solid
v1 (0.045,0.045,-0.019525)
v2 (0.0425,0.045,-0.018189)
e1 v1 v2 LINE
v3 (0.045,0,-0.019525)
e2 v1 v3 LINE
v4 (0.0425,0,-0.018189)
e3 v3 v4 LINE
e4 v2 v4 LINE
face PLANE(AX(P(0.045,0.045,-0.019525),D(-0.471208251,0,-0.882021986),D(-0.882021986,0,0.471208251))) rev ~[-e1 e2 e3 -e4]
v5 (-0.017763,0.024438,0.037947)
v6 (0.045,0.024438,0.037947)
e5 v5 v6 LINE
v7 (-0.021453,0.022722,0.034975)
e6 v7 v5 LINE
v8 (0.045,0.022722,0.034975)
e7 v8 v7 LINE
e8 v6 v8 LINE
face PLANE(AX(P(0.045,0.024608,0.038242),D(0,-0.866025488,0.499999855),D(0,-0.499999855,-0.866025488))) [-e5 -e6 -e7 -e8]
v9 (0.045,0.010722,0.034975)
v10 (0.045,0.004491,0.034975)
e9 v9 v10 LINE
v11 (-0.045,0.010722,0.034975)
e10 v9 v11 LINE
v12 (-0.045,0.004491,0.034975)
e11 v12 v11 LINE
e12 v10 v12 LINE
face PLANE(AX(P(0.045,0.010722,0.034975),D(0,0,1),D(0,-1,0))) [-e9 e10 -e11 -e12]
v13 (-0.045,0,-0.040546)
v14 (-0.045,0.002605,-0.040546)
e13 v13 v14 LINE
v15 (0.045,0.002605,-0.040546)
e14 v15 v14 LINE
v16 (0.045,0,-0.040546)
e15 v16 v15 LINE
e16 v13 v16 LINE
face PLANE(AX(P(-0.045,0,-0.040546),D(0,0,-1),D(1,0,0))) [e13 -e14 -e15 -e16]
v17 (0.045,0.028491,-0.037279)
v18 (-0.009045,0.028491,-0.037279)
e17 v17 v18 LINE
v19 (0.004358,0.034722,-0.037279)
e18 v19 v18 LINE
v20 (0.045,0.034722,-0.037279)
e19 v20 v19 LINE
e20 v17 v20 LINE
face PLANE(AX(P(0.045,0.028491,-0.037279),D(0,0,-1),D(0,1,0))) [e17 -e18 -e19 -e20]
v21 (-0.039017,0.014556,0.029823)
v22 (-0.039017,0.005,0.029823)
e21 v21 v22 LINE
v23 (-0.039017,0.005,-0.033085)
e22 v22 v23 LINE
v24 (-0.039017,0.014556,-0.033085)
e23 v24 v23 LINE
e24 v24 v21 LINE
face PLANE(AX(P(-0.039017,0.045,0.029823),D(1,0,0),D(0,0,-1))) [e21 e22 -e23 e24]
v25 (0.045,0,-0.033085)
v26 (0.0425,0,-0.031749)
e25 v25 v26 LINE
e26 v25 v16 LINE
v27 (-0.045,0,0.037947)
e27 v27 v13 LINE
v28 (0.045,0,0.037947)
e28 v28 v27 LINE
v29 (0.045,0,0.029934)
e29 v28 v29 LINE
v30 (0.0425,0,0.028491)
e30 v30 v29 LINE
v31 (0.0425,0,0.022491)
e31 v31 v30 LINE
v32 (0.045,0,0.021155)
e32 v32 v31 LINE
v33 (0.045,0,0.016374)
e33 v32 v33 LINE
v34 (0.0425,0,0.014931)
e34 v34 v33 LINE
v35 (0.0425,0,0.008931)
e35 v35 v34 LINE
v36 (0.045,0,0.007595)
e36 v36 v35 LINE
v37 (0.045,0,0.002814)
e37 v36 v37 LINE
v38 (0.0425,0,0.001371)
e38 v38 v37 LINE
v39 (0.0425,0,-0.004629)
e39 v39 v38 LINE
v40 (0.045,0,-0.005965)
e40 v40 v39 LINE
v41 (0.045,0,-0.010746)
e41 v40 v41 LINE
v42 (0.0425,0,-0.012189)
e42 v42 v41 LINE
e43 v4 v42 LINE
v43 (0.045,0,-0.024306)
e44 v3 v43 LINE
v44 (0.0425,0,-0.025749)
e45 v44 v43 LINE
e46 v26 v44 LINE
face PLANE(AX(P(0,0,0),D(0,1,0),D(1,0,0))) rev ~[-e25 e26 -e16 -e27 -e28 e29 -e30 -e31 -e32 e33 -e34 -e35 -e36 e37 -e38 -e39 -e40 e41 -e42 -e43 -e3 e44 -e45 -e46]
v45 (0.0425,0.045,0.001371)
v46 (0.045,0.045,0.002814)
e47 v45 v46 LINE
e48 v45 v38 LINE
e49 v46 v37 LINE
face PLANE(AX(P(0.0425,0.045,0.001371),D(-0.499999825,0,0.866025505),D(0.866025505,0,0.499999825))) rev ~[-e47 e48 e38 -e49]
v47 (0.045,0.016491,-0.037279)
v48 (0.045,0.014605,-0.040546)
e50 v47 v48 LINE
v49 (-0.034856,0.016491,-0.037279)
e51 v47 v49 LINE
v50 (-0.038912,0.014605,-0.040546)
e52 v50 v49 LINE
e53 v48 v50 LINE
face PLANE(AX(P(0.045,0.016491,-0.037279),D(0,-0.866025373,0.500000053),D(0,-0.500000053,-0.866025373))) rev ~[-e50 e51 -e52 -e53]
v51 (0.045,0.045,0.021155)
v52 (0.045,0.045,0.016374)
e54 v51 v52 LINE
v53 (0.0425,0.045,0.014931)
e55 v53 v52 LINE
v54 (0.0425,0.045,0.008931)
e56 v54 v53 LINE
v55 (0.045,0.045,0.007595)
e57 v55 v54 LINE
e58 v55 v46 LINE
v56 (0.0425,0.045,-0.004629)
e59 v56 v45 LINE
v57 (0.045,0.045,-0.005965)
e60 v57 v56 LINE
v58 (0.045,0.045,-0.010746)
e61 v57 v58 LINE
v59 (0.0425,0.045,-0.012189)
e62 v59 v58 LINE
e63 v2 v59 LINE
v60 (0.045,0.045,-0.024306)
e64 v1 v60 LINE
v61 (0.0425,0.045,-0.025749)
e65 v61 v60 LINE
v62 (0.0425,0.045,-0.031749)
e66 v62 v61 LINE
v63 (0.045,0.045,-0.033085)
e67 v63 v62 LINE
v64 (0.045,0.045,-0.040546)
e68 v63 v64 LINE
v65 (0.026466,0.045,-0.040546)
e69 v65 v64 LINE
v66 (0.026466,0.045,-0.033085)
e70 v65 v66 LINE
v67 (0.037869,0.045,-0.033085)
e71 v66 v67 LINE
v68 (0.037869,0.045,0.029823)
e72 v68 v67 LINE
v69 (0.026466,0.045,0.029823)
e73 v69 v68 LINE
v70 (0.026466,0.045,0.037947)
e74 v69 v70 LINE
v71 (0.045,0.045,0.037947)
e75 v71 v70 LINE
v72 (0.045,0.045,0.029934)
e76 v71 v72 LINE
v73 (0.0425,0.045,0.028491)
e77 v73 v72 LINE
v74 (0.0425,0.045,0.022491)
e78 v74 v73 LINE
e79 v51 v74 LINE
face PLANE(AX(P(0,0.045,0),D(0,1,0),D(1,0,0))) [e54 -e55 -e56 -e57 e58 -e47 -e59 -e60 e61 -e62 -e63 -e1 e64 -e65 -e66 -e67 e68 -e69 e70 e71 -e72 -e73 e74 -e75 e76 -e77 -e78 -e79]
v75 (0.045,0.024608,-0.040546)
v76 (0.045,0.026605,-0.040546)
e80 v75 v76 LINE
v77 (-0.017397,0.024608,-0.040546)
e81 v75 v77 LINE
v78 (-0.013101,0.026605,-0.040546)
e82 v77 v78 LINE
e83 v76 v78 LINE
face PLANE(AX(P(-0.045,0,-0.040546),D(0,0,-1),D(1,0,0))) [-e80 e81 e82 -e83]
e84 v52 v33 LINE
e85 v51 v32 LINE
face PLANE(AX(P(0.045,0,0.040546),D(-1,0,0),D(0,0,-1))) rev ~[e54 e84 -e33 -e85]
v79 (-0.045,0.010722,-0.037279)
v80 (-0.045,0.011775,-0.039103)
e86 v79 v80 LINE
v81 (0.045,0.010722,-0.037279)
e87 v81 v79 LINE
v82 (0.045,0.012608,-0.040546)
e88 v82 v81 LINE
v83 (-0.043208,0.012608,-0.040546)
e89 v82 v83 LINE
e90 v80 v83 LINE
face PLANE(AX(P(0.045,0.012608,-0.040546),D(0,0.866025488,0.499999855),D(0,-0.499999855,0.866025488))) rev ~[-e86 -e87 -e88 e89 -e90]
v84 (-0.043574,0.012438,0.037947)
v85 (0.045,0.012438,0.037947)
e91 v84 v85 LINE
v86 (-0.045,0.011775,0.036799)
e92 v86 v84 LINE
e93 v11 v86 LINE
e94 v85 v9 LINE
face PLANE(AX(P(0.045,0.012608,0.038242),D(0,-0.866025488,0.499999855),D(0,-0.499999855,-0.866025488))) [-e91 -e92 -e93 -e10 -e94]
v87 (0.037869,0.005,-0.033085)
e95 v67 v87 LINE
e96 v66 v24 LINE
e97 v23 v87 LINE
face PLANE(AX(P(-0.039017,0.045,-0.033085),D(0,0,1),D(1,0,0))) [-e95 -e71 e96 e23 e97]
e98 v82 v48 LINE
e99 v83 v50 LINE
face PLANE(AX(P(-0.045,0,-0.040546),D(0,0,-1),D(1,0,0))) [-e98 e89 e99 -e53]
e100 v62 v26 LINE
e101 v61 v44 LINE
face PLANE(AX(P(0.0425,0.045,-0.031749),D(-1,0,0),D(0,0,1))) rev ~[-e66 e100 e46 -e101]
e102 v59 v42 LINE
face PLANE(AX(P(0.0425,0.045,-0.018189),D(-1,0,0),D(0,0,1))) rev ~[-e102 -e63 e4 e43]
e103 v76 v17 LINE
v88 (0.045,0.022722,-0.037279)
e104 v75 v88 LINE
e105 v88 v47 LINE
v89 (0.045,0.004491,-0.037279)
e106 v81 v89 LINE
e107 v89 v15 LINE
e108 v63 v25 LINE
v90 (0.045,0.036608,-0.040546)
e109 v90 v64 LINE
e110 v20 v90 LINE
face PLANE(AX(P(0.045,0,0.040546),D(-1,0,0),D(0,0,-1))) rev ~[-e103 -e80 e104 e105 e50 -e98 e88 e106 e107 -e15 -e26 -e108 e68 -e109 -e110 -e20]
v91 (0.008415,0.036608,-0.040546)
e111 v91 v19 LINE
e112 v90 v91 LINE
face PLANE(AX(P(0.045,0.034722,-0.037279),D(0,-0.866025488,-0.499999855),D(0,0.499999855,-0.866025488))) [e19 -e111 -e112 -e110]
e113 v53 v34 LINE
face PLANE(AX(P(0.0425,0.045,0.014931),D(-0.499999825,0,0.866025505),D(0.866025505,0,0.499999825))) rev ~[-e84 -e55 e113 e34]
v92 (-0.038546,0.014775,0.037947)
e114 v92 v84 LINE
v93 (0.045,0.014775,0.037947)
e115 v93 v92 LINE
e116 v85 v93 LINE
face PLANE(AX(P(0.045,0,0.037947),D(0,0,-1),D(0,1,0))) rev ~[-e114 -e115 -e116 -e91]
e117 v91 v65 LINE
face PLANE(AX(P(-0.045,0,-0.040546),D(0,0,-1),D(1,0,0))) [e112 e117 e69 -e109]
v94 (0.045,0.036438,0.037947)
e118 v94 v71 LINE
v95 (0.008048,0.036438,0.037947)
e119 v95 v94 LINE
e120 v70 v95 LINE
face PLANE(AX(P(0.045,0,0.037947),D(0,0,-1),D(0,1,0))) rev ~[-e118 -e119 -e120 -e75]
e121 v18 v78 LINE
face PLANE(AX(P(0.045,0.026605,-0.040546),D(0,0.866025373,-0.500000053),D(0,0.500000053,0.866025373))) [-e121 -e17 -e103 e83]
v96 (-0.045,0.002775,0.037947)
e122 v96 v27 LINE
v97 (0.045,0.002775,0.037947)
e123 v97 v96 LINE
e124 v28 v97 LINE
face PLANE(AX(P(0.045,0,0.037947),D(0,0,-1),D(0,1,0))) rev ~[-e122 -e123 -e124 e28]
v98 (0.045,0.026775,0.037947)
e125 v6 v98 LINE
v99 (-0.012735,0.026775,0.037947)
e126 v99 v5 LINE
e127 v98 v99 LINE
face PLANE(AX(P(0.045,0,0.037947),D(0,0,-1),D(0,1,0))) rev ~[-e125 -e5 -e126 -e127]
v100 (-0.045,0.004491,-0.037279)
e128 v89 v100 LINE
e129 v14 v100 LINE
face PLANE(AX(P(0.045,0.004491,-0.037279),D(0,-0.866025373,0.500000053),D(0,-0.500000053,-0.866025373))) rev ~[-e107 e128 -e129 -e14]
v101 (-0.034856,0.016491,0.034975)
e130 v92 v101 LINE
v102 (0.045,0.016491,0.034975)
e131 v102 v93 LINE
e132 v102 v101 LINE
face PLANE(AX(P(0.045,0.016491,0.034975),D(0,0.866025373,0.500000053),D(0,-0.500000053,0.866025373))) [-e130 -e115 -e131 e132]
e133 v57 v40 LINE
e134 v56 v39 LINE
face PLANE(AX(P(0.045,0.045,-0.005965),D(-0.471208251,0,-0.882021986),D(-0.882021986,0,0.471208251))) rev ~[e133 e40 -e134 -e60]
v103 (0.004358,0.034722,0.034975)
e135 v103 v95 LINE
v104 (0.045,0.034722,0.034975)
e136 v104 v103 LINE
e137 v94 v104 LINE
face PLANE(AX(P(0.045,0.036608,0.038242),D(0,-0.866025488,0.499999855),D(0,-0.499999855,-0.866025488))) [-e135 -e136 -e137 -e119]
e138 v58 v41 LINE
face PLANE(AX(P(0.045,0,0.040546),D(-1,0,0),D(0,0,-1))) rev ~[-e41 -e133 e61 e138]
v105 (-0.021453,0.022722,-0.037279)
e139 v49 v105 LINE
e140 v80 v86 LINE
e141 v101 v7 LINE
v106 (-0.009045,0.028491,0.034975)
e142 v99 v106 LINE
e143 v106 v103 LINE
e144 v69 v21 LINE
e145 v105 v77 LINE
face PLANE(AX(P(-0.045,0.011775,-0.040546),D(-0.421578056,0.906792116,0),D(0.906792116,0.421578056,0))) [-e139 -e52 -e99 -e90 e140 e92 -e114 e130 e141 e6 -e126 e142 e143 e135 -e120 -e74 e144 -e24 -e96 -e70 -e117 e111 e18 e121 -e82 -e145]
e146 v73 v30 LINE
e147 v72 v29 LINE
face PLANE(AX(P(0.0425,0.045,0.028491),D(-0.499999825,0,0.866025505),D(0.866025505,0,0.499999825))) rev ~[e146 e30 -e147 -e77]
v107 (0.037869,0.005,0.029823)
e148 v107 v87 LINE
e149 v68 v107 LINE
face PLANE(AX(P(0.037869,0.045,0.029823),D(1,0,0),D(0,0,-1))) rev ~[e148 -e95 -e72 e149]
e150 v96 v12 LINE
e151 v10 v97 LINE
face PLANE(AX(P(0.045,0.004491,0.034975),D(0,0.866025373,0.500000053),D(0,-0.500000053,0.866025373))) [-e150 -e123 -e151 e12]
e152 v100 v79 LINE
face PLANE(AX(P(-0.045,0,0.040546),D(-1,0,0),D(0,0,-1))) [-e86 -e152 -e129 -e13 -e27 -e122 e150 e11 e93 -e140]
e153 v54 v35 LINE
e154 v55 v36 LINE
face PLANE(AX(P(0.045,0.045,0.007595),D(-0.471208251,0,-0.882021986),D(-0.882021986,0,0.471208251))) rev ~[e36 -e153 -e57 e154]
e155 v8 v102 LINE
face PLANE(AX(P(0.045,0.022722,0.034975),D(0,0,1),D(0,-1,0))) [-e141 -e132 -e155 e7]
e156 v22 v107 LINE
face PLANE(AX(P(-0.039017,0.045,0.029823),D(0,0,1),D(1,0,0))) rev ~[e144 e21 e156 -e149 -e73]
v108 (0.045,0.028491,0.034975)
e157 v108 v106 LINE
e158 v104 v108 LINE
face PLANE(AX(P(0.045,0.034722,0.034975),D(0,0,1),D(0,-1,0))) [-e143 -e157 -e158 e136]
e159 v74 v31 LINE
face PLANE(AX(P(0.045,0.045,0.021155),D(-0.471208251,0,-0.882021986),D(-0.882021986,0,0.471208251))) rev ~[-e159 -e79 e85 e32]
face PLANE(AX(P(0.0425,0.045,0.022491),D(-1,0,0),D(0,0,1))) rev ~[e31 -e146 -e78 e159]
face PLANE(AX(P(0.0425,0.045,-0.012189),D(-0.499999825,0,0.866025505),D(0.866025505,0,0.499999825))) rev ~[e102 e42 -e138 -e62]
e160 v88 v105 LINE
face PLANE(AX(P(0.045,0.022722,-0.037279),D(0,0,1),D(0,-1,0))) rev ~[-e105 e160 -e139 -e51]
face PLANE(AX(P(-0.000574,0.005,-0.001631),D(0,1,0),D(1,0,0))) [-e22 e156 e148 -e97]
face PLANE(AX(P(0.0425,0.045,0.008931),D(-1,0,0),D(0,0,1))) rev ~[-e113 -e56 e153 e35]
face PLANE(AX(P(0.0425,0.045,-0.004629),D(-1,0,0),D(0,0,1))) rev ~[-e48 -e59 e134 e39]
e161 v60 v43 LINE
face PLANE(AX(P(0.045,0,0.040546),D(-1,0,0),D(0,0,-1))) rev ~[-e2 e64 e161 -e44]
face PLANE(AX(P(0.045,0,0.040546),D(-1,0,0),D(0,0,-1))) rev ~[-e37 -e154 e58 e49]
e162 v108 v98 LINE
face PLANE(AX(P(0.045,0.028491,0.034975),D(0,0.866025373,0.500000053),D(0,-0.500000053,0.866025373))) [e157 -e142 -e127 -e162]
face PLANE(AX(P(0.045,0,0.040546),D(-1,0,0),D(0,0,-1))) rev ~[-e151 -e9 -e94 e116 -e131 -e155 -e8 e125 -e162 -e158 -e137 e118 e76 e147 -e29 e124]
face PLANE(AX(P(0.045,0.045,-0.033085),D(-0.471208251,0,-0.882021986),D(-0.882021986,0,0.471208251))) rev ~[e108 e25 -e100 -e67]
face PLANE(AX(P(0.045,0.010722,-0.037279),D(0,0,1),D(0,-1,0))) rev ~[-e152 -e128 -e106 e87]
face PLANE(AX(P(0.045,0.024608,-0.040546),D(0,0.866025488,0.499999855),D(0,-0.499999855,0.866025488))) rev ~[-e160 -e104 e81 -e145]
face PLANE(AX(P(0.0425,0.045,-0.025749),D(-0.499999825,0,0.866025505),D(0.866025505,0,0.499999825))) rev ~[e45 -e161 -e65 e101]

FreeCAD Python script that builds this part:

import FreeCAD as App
import Part
import Sketcher
from FreeCAD import Vector
Q = App.Units.Quantity


def add_polygon(sketch, points):
    """Adds a closed chain of lines whose ends are joined by coincident constraints."""
    first, n = sketch.GeometryCount, len(points)
    for a, b in zip(points, points[1:] + points[:1]):
        sketch.addGeometry(Part.LineSegment(App.Vector(*a, 0), App.Vector(*b, 0)), False)
    for i in range(n):
        sketch.addConstraint(Sketcher.Constraint("Coincident", first + i, 2, first + (i + 1) % n, 1))

doc = App.newDocument("Part")
body = doc.addObject("PartDesign::Body", "Body")

sketch1 = body.newObject("Sketcher::SketchObject", "Sketch")
sketch1.AttachmentSupport = (doc.getObject("XZ_Plane"), [""])
sketch1.MapMode = "FlatFace"
add_polygon(sketch1, [(-0.04, -0.04), (-0.04, 0.04), (0.04, 0.04), (0.04, -0.04)])
sketch1.addConstraint([
    Sketcher.Constraint("Vertical", 0),
    Sketcher.Constraint("Horizontal", 1),
    Sketcher.Constraint("Vertical", 2),
    Sketcher.Constraint("Horizontal", 3),
    Sketcher.Constraint("Symmetric", 0, 2, 2, 2, -1, 1),
    Sketcher.Constraint("DistanceX", 1, 1, 1, 2, Q("0.09 mm")),
    Sketcher.Constraint("DistanceY", 0, 1, 0, 2, Q("0.081091 mm")),
])
pad1 = body.newObject("PartDesign::Pad", "Pad")
pad1.Profile = sketch1
pad1.Length = 0.045
pad1.Reversed = True

sketch2 = body.newObject("Sketcher::SketchObject", "Sketch001")
sketch2.AttachmentSupport = (doc.getObject("XZ_Plane"), [""])
sketch2.MapMode = "FlatFace"
sketch2.AttachmentOffset = App.Placement(Vector(0, 0, -0.045), App.Rotation())
add_polygon(sketch2, [(-0.04, -0.03), (-0.04, 0.03), (0.04, 0.03), (0.04, -0.03)])
sketch2.addConstraint([
    Sketcher.Constraint("Vertical", 0),
    Sketcher.Constraint("Horizontal", 1),
    Sketcher.Constraint("Vertical", 2),
    Sketcher.Constraint("Horizontal", 3),
    Sketcher.Constraint("DistanceX", 1, 1, 1, 2, Q("0.076886 mm")),
    Sketcher.Constraint("DistanceY", 0, 1, 0, 2, Q("0.062908 mm")),
    Sketcher.Constraint("DistanceX", -1, 1, 1, 2, Q("0.037869 mm")),
    Sketcher.Constraint("DistanceY", -1, 1, 0, 2, Q("0.029823 mm")),
])
pocket1 = body.newObject("PartDesign::Pocket", "Pocket")
pocket1.Profile = sketch2
pocket1.Length = 0.04
pocket1.Reversed = True

sketch3 = body.newObject("Sketcher::SketchObject", "Sketch002")
sketch3.AttachmentSupport = (doc.getObject("XY_Plane"), [""])
sketch3.MapMode = "FlatFace"
sketch3.AttachmentOffset = App.Placement(Vector(0, 0, -0.040546), App.Rotation())
add_polygon(sketch3, [(-0.045, 0.045), (0.026, 0.045), (-0.045, 0.012)])
sketch3.addConstraint([
    Sketcher.Constraint("Horizontal", 0),
    Sketcher.Constraint("Vertical", 2),
    Sketcher.Constraint("DistanceY", -1, 1, 0, 2, Q("0.045 mm")),
    Sketcher.Constraint("DistanceX", 1, 2, -1, 1, Q("0.045 mm")),
    Sketcher.Constraint("Distance", 1, Q("0.078812 mm")),
    Sketcher.Constraint("DistanceX", 0, 1, 0, 2, Q("0.071466 mm")),
])
pocket2 = body.newObject("PartDesign::Pocket", "Pocket001")
pocket2.Profile = sketch3
pocket2.Length = 0.085
pocket2.Reversed = True

sketch4 = body.newObject("Sketcher::SketchObject", "Sketch003")
sketch4.AttachmentSupport = (doc.getObject("XZ_Plane"), [""])
sketch4.MapMode = "FlatFace"
sketch4.AttachmentOffset = App.Placement(Vector(0, 0, -0.045), App.Rotation())
add_polygon(sketch4, [(0.045, -0.0331), (0.0425, -0.0317), (0.0425, -0.0257), (0.045, -0.0243)])
add_polygon(sketch4, [(0.045, -0.0195), (0.0425, -0.0182), (0.0425, -0.0122), (0.045, -0.0107)])
add_polygon(sketch4, [(0.045, -0.006), (0.0425, -0.0046), (0.0425, 0.0014), (0.045, 0.0028)])
add_polygon(sketch4, [(0.045, 0.0076), (0.0425, 0.0089), (0.0425, 0.0149), (0.045, 0.0164)])
add_polygon(sketch4, [(0.045, 0.0212), (0.0425, 0.0225), (0.0425, 0.0285), (0.045, 0.0299)])
sketch4.addConstraint([
    Sketcher.Constraint("Vertical", 1),
    Sketcher.Constraint("Vertical", 3),
    Sketcher.Constraint("Vertical", 5),
    Sketcher.Constraint("Vertical", 7),
    Sketcher.Constraint("Vertical", 9),
    Sketcher.Constraint("Vertical", 11),
    Sketcher.Constraint("Vertical", 13),
    Sketcher.Constraint("Vertical", 15),
    Sketcher.Constraint("Vertical", 17),
    Sketcher.Constraint("Vertical", 19),
    Sketcher.Constraint("Parallel", 0, 4),
    Sketcher.Constraint("Parallel", 2, 6),
    Sketcher.Constraint("Parallel", 4, 8),
    Sketcher.Constraint("Parallel", 6, 10),
    Sketcher.Constraint("Parallel", 8, 12),
    Sketcher.Constraint("Parallel", 10, 14),
    Sketcher.Constraint("Parallel", 12, 16),
    Sketcher.Constraint("Parallel", 14, 18),
    Sketcher.Constraint("Vertical", 1, 2, 4, 2),
    Sketcher.Constraint("Vertical", 3, 2, 6, 2),
    Sketcher.Constraint("Vertical", 5, 2, 8, 2),
    Sketcher.Constraint("Vertical", 7, 2, 10, 2),
    Sketcher.Constraint("Vertical", 9, 2, 12, 2),
    Sketcher.Constraint("Vertical", 11, 2, 14, 2),
    Sketcher.Constraint("Vertical", 13, 2, 16, 2),
    Sketcher.Constraint("Vertical", 15, 2, 18, 2),
    Sketcher.Constraint("Equal", 1, 5),
    Sketcher.Constraint("Equal", 5, 9),
    Sketcher.Constraint("Equal", 9, 13),
    Sketcher.Constraint("Equal", 13, 17),
    Sketcher.Constraint("Angle", 2, Q("29.999988 deg")),
    Sketcher.Constraint("DistanceY", 1, 1, 1, 2, Q("0.006 mm")),
    Sketcher.Constraint("DistanceX", -1, 1, 2, 2, Q("0.045 mm")),
    Sketcher.Constraint("DistanceY", 3, 2, 3, 1, Q("0.008779 mm")),
    Sketcher.Constraint("DistanceX", -1, 1, 0, 2, Q("0.0425 mm")),
    Sketcher.Constraint("DistanceY", 0, 2, -1, 1, Q("0.031749 mm")),
    Sketcher.Constraint("DistanceY", 4, 2, -1, 1, Q("0.018189 mm")),
    Sketcher.Constraint("DistanceY", 8, 2, -1, 1, Q("0.004629 mm")),
    Sketcher.Constraint("DistanceY", -1, 1, 12, 2, Q("0.008931 mm")),
    Sketcher.Constraint("DistanceY", -1, 1, 16, 2, Q("0.022491 mm")),
])
pocket3 = body.newObject("PartDesign::Pocket", "Pocket002")
pocket3.Profile = sketch4
pocket3.Length = 0.045
pocket3.Reversed = True

sketch5 = body.newObject("Sketcher::SketchObject", "Sketch004")
sketch5.AttachmentSupport = (doc.getObject("YZ_Plane"), [""])
sketch5.MapMode = "FlatFace"
sketch5.AttachmentOffset = App.Placement(Vector(0, 0, 0.045), App.Rotation())
add_polygon(sketch5, [(0.0266, -0.0405), (0.0366, -0.0405), (0.0347, -0.0373), (0.0285, -0.0373)])
add_polygon(sketch5, [(0.0227, -0.0373), (0.0165, -0.0373), (0.0146, -0.0405), (0.0246, -0.0405)])
add_polygon(sketch5, [(0.0107, -0.0373), (0.0045, -0.0373), (0.0026, -0.0405), (0.0126, -0.0405)])
add_polygon(sketch5, [(0.0107, 0.035), (0.0126, 0.0382), (0.0026, 0.0382), (0.0045, 0.035)])
add_polygon(sketch5, [(0.0227, 0.035), (0.0246, 0.0382), (0.0146, 0.0382), (0.0165, 0.035)])
add_polygon(sketch5, [(0.0347, 0.035), (0.0366, 0.0382), (0.0266, 0.0382), (0.0285, 0.035)])
sketch5.addConstraint([
    Sketcher.Constraint("Horizontal", 0),
    Sketcher.Constraint("Horizontal", 2),
    Sketcher.Constraint("Horizontal", 4),
    Sketcher.Constraint("Horizontal", 6),
    Sketcher.Constraint("Horizontal", 8),
    Sketcher.Constraint("Horizontal", 10),
    Sketcher.Constraint("Horizontal", 13),
    Sketcher.Constraint("Horizontal", 15),
    Sketcher.Constraint("Horizontal", 17),
    Sketcher.Constraint("Horizontal", 19),
    Sketcher.Constraint("Horizontal", 21),
    Sketcher.Constraint("Horizontal", 23),
    Sketcher.Constraint("Parallel", 3, 5),
    Sketcher.Constraint("Parallel", 1, 7),
    Sketcher.Constraint("Parallel", 5, 9),
    Sketcher.Constraint("Parallel", 7, 11),
    Sketcher.Constraint("Parallel", 9, 12),
    Sketcher.Constraint("Parallel", 11, 14),
    Sketcher.Constraint("Parallel", 12, 16),
    Sketcher.Constraint("Parallel", 14, 18),
    Sketcher.Constraint("Parallel", 16, 20),
    Sketcher.Constraint("Parallel", 18, 22),
    Sketcher.Constraint("Horizontal", 2, 2, 4, 2),
    Sketcher.Constraint("Horizontal", 3, 2, 5, 2),
    Sketcher.Constraint("Horizontal", 7, 2, 8, 2),
    Sketcher.Constraint("Horizontal", 6, 2, 9, 2),
    Sketcher.Constraint("Horizontal", 13, 2, 16, 2),
    Sketcher.Constraint("Horizontal", 15, 2, 18, 2),
    Sketcher.Constraint("Horizontal", 17, 2, 20, 2),
    Sketcher.Constraint("Horizontal", 19, 2, 22, 2),
    Sketcher.Constraint("Vertical", 10, 2, 12, 2),
    Sketcher.Constraint("Vertical", 9, 2, 13, 2),
    Sketcher.Constraint("Vertical", 8, 2, 14, 2),
    Sketcher.Constraint("Vertical", 11, 2, 15, 2),
    Sketcher.Constraint("Vertical", 6, 2, 16, 2),
    Sketcher.Constraint("Vertical", 5, 2, 17, 2),
    Sketcher.Constraint("Vertical", 0, 2, 20, 2),
    Sketcher.Constraint("Vertical", 3, 2, 21, 2),
    Sketcher.Constraint("Equal", 2, 4),
    Sketcher.Constraint("Equal", 4, 8),
    Sketcher.Constraint("Angle", 1, Q("119.99999 deg")),
    Sketcher.Constraint("DistanceX", 4, 2, 2, 2, Q("0.012 mm")),
    Sketcher.Constraint("DistanceX", 8, 2, 4, 2, Q("0.012 mm")),
    Sketcher.Constraint("DistanceX", 2, 2, 2, 1, Q("0.006231 mm")),
    Sketcher.Constraint("Distance", 1, Q("0.003772 mm")),
    Sketcher.Constraint("DistanceY", 1, 2, -1, 1, Q("0.037279 mm")),
    Sketcher.Constraint("DistanceX", -1, 1, 2, 2, Q("0.028491 mm")),
    Sketcher.Constraint("DistanceY", -1, 1, 12, 2, Q("0.038242 mm")),
])
pocket4 = body.newObject("PartDesign::Pocket", "Pocket003")
pocket4.Profile = sketch5
pocket4.Length = 0.095

sketch6 = body.newObject("Sketcher::SketchObject", "Sketch005")
sketch6.AttachmentSupport = (doc.getObject("YZ_Plane"), [""])
sketch6.MapMode = "FlatFace"
sketch6.AttachmentOffset = App.Placement(Vector(0, 0, 0.045), App.Rotation())
add_polygon(sketch6, [(0.045, 0.0405), (0, 0.0405), (0, 0.0379), (0.045, 0.0379)])
sketch6.addConstraint([
    Sketcher.Constraint("Horizontal", 0),
    Sketcher.Constraint("Vertical", 1),
    Sketcher.Constraint("Horizontal", 2),
    Sketcher.Constraint("Vertical", 3),
    Sketcher.Constraint("PointOnObject", 0, 2, -2),
    Sketcher.Constraint("DistanceX", 0, 2, 0, 1, Q("0.045 mm")),
    Sketcher.Constraint("DistanceY", 1, 2, 1, 1, Q("0.002599 mm")),
    Sketcher.Constraint("DistanceY", -1, 1, 0, 2, Q("0.040546 mm")),
])
pocket5 = body.newObject("PartDesign::Pocket", "Pocket004")
pocket5.Profile = sketch6
pocket5.Length = 0.095

doc.recompute()
